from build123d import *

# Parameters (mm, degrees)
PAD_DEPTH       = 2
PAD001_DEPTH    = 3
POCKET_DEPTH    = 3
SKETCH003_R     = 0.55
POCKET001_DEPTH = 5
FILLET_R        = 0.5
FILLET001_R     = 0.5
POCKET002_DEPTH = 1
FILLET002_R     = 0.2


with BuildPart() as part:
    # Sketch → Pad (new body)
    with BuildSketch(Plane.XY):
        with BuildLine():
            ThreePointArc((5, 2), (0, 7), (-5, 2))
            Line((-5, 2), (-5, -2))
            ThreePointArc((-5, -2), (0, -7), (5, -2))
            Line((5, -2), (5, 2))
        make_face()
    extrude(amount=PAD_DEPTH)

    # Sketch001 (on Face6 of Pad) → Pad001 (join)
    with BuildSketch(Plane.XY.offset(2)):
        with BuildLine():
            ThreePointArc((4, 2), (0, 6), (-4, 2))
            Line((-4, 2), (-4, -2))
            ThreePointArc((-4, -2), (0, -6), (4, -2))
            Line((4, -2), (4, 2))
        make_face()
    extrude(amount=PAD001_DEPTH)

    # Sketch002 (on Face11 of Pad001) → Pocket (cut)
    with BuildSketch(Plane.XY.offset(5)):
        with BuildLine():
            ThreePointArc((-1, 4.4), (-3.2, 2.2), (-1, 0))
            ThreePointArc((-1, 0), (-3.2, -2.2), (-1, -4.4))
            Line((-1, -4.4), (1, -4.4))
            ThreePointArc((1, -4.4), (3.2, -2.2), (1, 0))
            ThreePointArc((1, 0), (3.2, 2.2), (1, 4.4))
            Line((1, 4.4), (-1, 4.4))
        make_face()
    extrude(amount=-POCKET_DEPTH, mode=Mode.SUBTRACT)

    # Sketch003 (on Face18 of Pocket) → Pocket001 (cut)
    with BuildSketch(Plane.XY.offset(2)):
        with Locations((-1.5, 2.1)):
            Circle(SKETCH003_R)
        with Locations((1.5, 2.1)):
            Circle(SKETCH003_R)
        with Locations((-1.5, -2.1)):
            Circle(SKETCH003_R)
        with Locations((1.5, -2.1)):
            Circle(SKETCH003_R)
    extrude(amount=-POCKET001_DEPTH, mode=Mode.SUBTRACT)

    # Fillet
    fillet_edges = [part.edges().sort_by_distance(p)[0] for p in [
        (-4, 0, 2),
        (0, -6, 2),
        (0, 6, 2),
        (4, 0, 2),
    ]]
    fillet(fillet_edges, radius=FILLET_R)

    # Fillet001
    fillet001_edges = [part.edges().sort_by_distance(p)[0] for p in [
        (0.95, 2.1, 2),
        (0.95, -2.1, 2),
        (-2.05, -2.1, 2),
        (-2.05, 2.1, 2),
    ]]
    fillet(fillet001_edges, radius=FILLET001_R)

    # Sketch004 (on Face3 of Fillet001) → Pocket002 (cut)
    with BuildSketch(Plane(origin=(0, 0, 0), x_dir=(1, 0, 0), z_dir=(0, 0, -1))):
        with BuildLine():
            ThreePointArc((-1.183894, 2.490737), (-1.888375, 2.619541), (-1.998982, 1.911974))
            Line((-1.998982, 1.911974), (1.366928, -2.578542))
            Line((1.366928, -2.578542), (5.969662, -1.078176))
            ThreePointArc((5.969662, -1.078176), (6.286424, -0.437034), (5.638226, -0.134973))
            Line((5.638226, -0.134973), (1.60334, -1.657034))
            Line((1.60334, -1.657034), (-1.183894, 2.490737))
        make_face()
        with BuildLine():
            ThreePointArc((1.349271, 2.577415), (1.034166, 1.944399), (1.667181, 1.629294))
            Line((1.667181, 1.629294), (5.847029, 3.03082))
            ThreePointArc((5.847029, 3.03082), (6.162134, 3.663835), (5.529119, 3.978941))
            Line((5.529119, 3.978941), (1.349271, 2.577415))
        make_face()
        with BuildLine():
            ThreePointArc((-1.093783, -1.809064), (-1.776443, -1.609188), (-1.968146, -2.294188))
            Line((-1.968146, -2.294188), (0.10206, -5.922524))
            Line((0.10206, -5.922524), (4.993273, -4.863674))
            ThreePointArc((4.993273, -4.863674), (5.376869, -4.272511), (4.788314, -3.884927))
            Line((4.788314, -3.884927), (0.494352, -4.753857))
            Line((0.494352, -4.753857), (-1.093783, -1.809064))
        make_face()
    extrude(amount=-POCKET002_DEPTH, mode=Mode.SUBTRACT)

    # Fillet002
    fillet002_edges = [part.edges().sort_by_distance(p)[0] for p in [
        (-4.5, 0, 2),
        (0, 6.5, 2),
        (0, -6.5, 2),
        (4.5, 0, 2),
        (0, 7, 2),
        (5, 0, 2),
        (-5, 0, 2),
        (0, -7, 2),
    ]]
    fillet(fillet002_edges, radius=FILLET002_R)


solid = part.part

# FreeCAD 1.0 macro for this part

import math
import FreeCAD as App
import Part
import Sketcher
Q = App.Units.Quantity


def edges_at(feature, points):
    """Names of the edges that pass closest to the given points."""
    edges = feature.Shape.Edges
    near = lambda p: min(range(len(edges)), key=lambda i: edges[i].distToShape(Part.Vertex(*p))[0])
    return sorted({f"Edge{near(p) + 1}" for p in points})

doc = App.newDocument("Part")
body = doc.addObject("PartDesign::Body", "Body")

sketch1 = body.newObject("Sketcher::SketchObject", "Sketch")
sketch1.AttachmentSupport = (doc.getObject("XY_Plane"), [""])
sketch1.MapMode = "FlatFace"
sketch1.addGeometry([
    Part.ArcOfCircle(Part.Circle(App.Vector(0, 2, 0), App.Vector(0, 0, 1), 5), math.radians(0), math.radians(180)),
    Part.LineSegment(App.Vector(-5, 2, 0), App.Vector(-5, -2, 0)),
    Part.ArcOfCircle(Part.Circle(App.Vector(0, -2, 0), App.Vector(0, 0, 1), 5), math.radians(180), math.radians(360)),
    Part.LineSegment(App.Vector(5, -2, 0), App.Vector(5, 2, 0)),
], False)
sketch1.addConstraint([
    Sketcher.Constraint("Tangent", 0, 2, 1, 1),
    Sketcher.Constraint("Tangent", 1, 2, 2, 1),
    Sketcher.Constraint("Tangent", 2, 2, 3, 1),
    Sketcher.Constraint("Tangent", 3, 2, 0, 1),
    Sketcher.Constraint("Vertical", 1),
    Sketcher.Constraint("Vertical", 3),
    Sketcher.Constraint("Symmetric", 0, 3, 2, 3, -1, 1),
    Sketcher.Constraint("Radius", 0, Q("5 mm")),
    Sketcher.Constraint("DistanceY", 1, 2, 1, 1, Q("4 mm")),
])
pad1 = body.newObject("PartDesign::Pad", "Pad")
pad1.Profile = sketch1
pad1.Length = 2

sketch2 = body.newObject("Sketcher::SketchObject", "Sketch001")
sketch2.AttachmentSupport = (doc.getObject("XY_Plane"), [""])
sketch2.MapMode = "FlatFace"
sketch2.AttachmentOffset = App.Placement(App.Vector(0, 0, 2), App.Rotation())
sketch2.addGeometry([
    Part.ArcOfCircle(Part.Circle(App.Vector(0, 2, 0), App.Vector(0, 0, 1), 4), math.radians(0), math.radians(180)),
    Part.LineSegment(App.Vector(-4, 2, 0), App.Vector(-4, -2, 0)),
    Part.ArcOfCircle(Part.Circle(App.Vector(0, -2, 0), App.Vector(0, 0, 1), 4), math.radians(180), math.radians(360)),
    Part.LineSegment(App.Vector(4, -2, 0), App.Vector(4, 2, 0)),
], False)
sketch2.addConstraint([
    Sketcher.Constraint("Tangent", 0, 2, 1, 1),
    Sketcher.Constraint("Tangent", 1, 2, 2, 1),
    Sketcher.Constraint("Tangent", 2, 2, 3, 1),
    Sketcher.Constraint("Tangent", 3, 2, 0, 1),
    Sketcher.Constraint("Vertical", 1),
    Sketcher.Constraint("Vertical", 3),
    Sketcher.Constraint("Symmetric", 0, 3, 2, 3, -1, 1),
    Sketcher.Constraint("Radius", 0, Q("4 mm")),
    Sketcher.Constraint("DistanceY", 1, 2, 1, 1, Q("4 mm")),
])
pad2 = body.newObject("PartDesign::Pad", "Pad001")
pad2.Profile = sketch2
pad2.Length = 3

sketch3 = body.newObject("Sketcher::SketchObject", "Sketch002")
sketch3.AttachmentSupport = (doc.getObject("XY_Plane"), [""])
sketch3.MapMode = "FlatFace"
sketch3.AttachmentOffset = App.Placement(App.Vector(0, 0, 5), App.Rotation())
sketch3.addGeometry([
    Part.ArcOfCircle(Part.Circle(App.Vector(-1, 2.2, 0), App.Vector(0, 0, 1), 2.2), math.radians(90), math.radians(270)),
    Part.ArcOfCircle(Part.Circle(App.Vector(-1, -2.2, 0), App.Vector(0, 0, 1), 2.2), math.radians(90), math.radians(270)),
    Part.LineSegment(App.Vector(-1, -4.4, 0), App.Vector(1, -4.4, 0)),
    Part.ArcOfCircle(Part.Circle(App.Vector(1, -2.2, 0), App.Vector(0, 0, 1), 2.2), math.radians(-90), math.radians(90)),
    Part.ArcOfCircle(Part.Circle(App.Vector(1, 2.2, 0), App.Vector(0, 0, 1), 2.2), math.radians(-90), math.radians(90)),
    Part.LineSegment(App.Vector(1, 4.4, 0), App.Vector(-1, 4.4, 0)),
], False)
sketch3.addConstraint([
    Sketcher.Constraint("Tangent", 0, 2, 1, 1),
    Sketcher.Constraint("Tangent", 1, 2, 2, 1),
    Sketcher.Constraint("Tangent", 2, 2, 3, 1),
    Sketcher.Constraint("Tangent", 3, 2, 4, 1),
    Sketcher.Constraint("Tangent", 4, 2, 5, 1),
    Sketcher.Constraint("Tangent", 5, 2, 0, 1),
    Sketcher.Constraint("Horizontal", 2),
    Sketcher.Constraint("Horizontal", 5),
    Sketcher.Constraint("Equal", 0, 1),
    Sketcher.Constraint("Equal", 1, 3),
    Sketcher.Constraint("Symmetric", 0, 3, 3, 3, -1, 1),
    Sketcher.Constraint("Vertical", 0, 3, 1, 3),
    Sketcher.Constraint("Vertical", 3, 3, 4, 3),
    Sketcher.Constraint("Radius", 0, Q("2.2 mm")),
    Sketcher.Constraint("DistanceX", 2, 1, 2, 2, Q("2 mm")),
])
pocket1 = body.newObject("PartDesign::Pocket", "Pocket")
pocket1.Profile = sketch3
pocket1.Length = 3

sketch4 = body.newObject("Sketcher::SketchObject", "Sketch003")
sketch4.AttachmentSupport = (doc.getObject("XY_Plane"), [""])
sketch4.MapMode = "FlatFace"
sketch4.AttachmentOffset = App.Placement(App.Vector(0, 0, 2), App.Rotation())
sketch4.addGeometry([
    Part.Circle(App.Vector(-1.5, 2.1, 0), App.Vector(0, 0, 1), 0.6),
    Part.Circle(App.Vector(1.5, 2.1, 0), App.Vector(0, 0, 1), 0.6),
    Part.Circle(App.Vector(-1.5, -2.1, 0), App.Vector(0, 0, 1), 0.6),
    Part.Circle(App.Vector(1.5, -2.1, 0), App.Vector(0, 0, 1), 0.6),
], False)
sketch4.addConstraint([
    Sketcher.Constraint("Equal", 0, 1),
    Sketcher.Constraint("Equal", 1, 2),
    Sketcher.Constraint("Equal", 2, 3),
    Sketcher.Constraint("Symmetric", 1, 3, 2, 3, -1, 1),
    Sketcher.Constraint("Symmetric", 0, 3, 3, 3, -1, 1),
    Sketcher.Constraint("Symmetric", 0, 3, 1, 3, -2),
    Sketcher.Constraint("Diameter", 0, Q("1.1 mm")),
    Sketcher.Constraint("DistanceX", 0, 3, 1, 3, Q("3 mm")),
    Sketcher.Constraint("DistanceY", -1, 1, 0, 3, Q("2.1 mm")),
])
pocket2 = body.newObject("PartDesign::Pocket", "Pocket001")
pocket2.Profile = sketch4
pocket2.Length = 5
doc.recompute()

fillet = body.newObject("PartDesign::Fillet", "Fillet")
fillet.Base = (pocket2, edges_at(pocket2, [
    (-4, 0, 2),
    (0, -6, 2),
    (0, 6, 2),
    (4, 0, 2),
]))
fillet.Radius = 0.5
doc.recompute()

fillet2 = body.newObject("PartDesign::Fillet", "Fillet001")
fillet2.Base = (fillet, edges_at(fillet, [
    (0.95, 2.1, 2),
    (0.95, -2.1, 2),
    (-2.05, -2.1, 2),
    (-2.05, 2.1, 2),
]))
fillet2.Radius = 0.5

sketch5 = body.newObject("Sketcher::SketchObject", "Sketch004")
sketch5.AttachmentSupport = (doc.getObject("XY_Plane"), [""])
sketch5.MapMode = "FlatFace"
sketch5.addGeometry([
    Part.ArcOfCircle(Part.Circle(App.Vector(-1.598898, -2.211861, 0), App.Vector(0, 0, 1), 0.5), math.radians(143.146223), math.radians(326.099551)),
    Part.LineSegment(App.Vector(-1.998982, -1.911974, 0), App.Vector(1.366928, 2.578542, 0)),
    Part.LineSegment(App.Vector(1.366928, 2.578542, 0), App.Vector(5.969662, 1.078176, 0)),
    Part.ArcOfCircle(Part.Circle(App.Vector(5.8147, 0.602795, 0), App.Vector(0, 0, 1), 0.5), math.radians(-110.667695), math.radians(71.945343)),
    Part.LineSegment(App.Vector(5.638226, 0.134973, 0), App.Vector(1.60334, 1.657034, 0)),
    Part.LineSegment(App.Vector(1.60334, 1.657034, 0), App.Vector(-1.183894, -2.490737, 0)),
    Part.ArcOfCircle(Part.Circle(App.Vector(1.508226, -2.103355, 0), App.Vector(0, 0, 1), 0.5), math.radians(71.463461), math.radians(251.463388)),
    Part.LineSegment(App.Vector(1.667181, -1.629294, 0), App.Vector(5.847029, -3.03082, 0)),
    Part.ArcOfCircle(Part.Circle(App.Vector(5.688073, -3.50488, 0), App.Vector(0, 0, 1), 0.5), math.radians(-108.536503), math.radians(71.463352)),
    Part.LineSegment(App.Vector(5.529119, -3.978941, 0), App.Vector(1.349271, -2.577415, 0)),
    Part.ArcOfCircle(Part.Circle(App.Vector(-1.533864, 2.046401, 0), App.Vector(0, 0, 1), 0.5), math.radians(150.292335), math.radians(331.661892)),
    Part.LineSegment(App.Vector(-1.968146, 2.294188, 0), App.Vector(0.10206, 5.922524, 0)),
    Part.LineSegment(App.Vector(0.10206, 5.922524, 0), App.Vector(4.993273, 4.863674, 0)),
    Part.ArcOfCircle(Part.Circle(App.Vector(4.887484, 4.374993, 0), App.Vector(0, 0, 1), 0.5), math.radians(-101.439957), math.radians(77.785206)),
    Part.LineSegment(App.Vector(4.788314, 3.884927, 0), App.Vector(0.494352, 4.753857, 0)),
    Part.LineSegment(App.Vector(0.494352, 4.753857, 0), App.Vector(-1.093783, 1.809064, 0)),
], False)
sketch5.addConstraint([
    Sketcher.Constraint("Coincident", 0, 1, 1, 1),
    Sketcher.Constraint("Coincident", 1, 2, 2, 1),
    Sketcher.Constraint("Coincident", 2, 2, 3, 2),
    Sketcher.Constraint("Coincident", 3, 1, 4, 1),
    Sketcher.Constraint("Coincident", 4, 2, 5, 1),
    Sketcher.Constraint("Coincident", 5, 2, 0, 2),
    Sketcher.Constraint("Coincident", 6, 1, 7, 1),
    Sketcher.Constraint("Coincident", 7, 2, 8, 2),
    Sketcher.Constraint("Coincident", 8, 1, 9, 1),
    Sketcher.Constraint("Coincident", 9, 2, 6, 2),
    Sketcher.Constraint("Coincident", 10, 1, 11, 1),
    Sketcher.Constraint("Coincident", 11, 2, 12, 1),
    Sketcher.Constraint("Coincident", 12, 2, 13, 2),
    Sketcher.Constraint("Coincident", 13, 1, 14, 1),
    Sketcher.Constraint("Coincident", 14, 2, 15, 1),
    Sketcher.Constraint("Coincident", 15, 2, 10, 2),
    Sketcher.Constraint("Radius", 0, Q("0.5 mm")),
    Sketcher.Constraint("Radius", 3, Q("0.5 mm")),
    Sketcher.Constraint("Radius", 6, Q("0.5 mm")),
    Sketcher.Constraint("Radius", 8, Q("0.5 mm")),
    Sketcher.Constraint("Radius", 10, Q("0.5 mm")),
    Sketcher.Constraint("Radius", 13, Q("0.5 mm")),
    Sketcher.Constraint("DistanceX", 6, 3, 3, 1, Q("4.13 mm")),
    Sketcher.Constraint("Distance", 14, Q("4.380999 mm")),
    Sketcher.Constraint("Distance", 2, Q("4.841101 mm")),
    Sketcher.Constraint("DistanceX", -1, 1, 3, 3, Q("5.8147 mm")),
    Sketcher.Constraint("DistanceY", -1, 1, 10, 3, Q("2.046401 mm")),
    Sketcher.Constraint("DistanceY", 3, 3, 13, 3, Q("3.772198 mm")),
    Sketcher.Constraint("DistanceX", 1, 2, 6, 3, Q("0.141298 mm")),
    Sketcher.Constraint("Distance", 1, Q("5.611959 mm")),
    Sketcher.Constraint("Distance", 4, Q("4.312421 mm")),
    Sketcher.Constraint("Distance", 7, Q("4.40856 mm")),
    Sketcher.Constraint("Distance", 9, Q("4.40856 mm")),
    Sketcher.Constraint("Distance", 11, Q("4.177389 mm")),
    Sketcher.Constraint("Distance", 12, Q("5.004511 mm")),
    Sketcher.Constraint("Distance", 15, Q("3.34574 mm")),
    Sketcher.Constraint("DistanceY", 0, 3, -1, 1, Q("2.211861 mm")),
    Sketcher.Constraint("DistanceY", 8, 3, -1, 1, Q("3.50488 mm")),
    Sketcher.Constraint("DistanceX", -1, 1, 2, 2, Q("5.969662 mm")),
    Sketcher.Constraint("DistanceX", -1, 1, 4, 2, Q("1.60334 mm")),
    Sketcher.Constraint("DistanceX", -1, 1, 6, 1, Q("1.667181 mm")),
    Sketcher.Constraint("DistanceX", -1, 1, 7, 2, Q("5.847029 mm")),
    Sketcher.Constraint("DistanceY", 7, 2, -1, 1, Q("3.03082 mm")),
    Sketcher.Constraint("DistanceX", -1, 1, 8, 1, Q("5.529119 mm")),
    Sketcher.Constraint("DistanceX", -1, 1, 11, 2, Q("0.10206 mm")),
    Sketcher.Constraint("DistanceY", 6, 3, 3, 3, Q("2.70615 mm")),
    Sketcher.Constraint("DistanceX", 0, 3, 8, 3, Q("7.286971 mm")),
    Sketcher.Constraint("DistanceX", 10, 3, 6, 3, Q("3.04209 mm")),
    Sketcher.Constraint("DistanceX", 10, 3, 13, 3, Q("6.421348 mm")),
    Sketcher.Constraint("DistanceX", 13, 3, 8, 3, Q("0.800589 mm")),
    Sketcher.Constraint("DistanceX", 0, 1, 5, 2, Q("0.815088 mm")),
    Sketcher.Constraint("DistanceY", 0, 1, 10, 1, Q("4.206162 mm")),
    Sketcher.Constraint("DistanceX", 13, 1, 13, 3, Q("0.09917 mm")),
    Sketcher.Constraint("DistanceX", 14, 2, 4, 2, Q("1.108988 mm")),
])
pocket3 = body.newObject("PartDesign::Pocket", "Pocket002")
pocket3.Profile = sketch5
pocket3.Length = 1
pocket3.Reversed = True
doc.recompute()

fillet3 = body.newObject("PartDesign::Fillet", "Fillet002")
fillet3.Base = (pocket3, edges_at(pocket3, [
    (-4.5, 0, 2),
    (0, 6.5, 2),
    (0, -6.5, 2),
    (4.5, 0, 2),
    (0, 7, 2),
    (5, 0, 2),
    (-5, 0, 2),
    (0, -7, 2),
]))
fillet3.Radius = 0.2

doc.recompute()
